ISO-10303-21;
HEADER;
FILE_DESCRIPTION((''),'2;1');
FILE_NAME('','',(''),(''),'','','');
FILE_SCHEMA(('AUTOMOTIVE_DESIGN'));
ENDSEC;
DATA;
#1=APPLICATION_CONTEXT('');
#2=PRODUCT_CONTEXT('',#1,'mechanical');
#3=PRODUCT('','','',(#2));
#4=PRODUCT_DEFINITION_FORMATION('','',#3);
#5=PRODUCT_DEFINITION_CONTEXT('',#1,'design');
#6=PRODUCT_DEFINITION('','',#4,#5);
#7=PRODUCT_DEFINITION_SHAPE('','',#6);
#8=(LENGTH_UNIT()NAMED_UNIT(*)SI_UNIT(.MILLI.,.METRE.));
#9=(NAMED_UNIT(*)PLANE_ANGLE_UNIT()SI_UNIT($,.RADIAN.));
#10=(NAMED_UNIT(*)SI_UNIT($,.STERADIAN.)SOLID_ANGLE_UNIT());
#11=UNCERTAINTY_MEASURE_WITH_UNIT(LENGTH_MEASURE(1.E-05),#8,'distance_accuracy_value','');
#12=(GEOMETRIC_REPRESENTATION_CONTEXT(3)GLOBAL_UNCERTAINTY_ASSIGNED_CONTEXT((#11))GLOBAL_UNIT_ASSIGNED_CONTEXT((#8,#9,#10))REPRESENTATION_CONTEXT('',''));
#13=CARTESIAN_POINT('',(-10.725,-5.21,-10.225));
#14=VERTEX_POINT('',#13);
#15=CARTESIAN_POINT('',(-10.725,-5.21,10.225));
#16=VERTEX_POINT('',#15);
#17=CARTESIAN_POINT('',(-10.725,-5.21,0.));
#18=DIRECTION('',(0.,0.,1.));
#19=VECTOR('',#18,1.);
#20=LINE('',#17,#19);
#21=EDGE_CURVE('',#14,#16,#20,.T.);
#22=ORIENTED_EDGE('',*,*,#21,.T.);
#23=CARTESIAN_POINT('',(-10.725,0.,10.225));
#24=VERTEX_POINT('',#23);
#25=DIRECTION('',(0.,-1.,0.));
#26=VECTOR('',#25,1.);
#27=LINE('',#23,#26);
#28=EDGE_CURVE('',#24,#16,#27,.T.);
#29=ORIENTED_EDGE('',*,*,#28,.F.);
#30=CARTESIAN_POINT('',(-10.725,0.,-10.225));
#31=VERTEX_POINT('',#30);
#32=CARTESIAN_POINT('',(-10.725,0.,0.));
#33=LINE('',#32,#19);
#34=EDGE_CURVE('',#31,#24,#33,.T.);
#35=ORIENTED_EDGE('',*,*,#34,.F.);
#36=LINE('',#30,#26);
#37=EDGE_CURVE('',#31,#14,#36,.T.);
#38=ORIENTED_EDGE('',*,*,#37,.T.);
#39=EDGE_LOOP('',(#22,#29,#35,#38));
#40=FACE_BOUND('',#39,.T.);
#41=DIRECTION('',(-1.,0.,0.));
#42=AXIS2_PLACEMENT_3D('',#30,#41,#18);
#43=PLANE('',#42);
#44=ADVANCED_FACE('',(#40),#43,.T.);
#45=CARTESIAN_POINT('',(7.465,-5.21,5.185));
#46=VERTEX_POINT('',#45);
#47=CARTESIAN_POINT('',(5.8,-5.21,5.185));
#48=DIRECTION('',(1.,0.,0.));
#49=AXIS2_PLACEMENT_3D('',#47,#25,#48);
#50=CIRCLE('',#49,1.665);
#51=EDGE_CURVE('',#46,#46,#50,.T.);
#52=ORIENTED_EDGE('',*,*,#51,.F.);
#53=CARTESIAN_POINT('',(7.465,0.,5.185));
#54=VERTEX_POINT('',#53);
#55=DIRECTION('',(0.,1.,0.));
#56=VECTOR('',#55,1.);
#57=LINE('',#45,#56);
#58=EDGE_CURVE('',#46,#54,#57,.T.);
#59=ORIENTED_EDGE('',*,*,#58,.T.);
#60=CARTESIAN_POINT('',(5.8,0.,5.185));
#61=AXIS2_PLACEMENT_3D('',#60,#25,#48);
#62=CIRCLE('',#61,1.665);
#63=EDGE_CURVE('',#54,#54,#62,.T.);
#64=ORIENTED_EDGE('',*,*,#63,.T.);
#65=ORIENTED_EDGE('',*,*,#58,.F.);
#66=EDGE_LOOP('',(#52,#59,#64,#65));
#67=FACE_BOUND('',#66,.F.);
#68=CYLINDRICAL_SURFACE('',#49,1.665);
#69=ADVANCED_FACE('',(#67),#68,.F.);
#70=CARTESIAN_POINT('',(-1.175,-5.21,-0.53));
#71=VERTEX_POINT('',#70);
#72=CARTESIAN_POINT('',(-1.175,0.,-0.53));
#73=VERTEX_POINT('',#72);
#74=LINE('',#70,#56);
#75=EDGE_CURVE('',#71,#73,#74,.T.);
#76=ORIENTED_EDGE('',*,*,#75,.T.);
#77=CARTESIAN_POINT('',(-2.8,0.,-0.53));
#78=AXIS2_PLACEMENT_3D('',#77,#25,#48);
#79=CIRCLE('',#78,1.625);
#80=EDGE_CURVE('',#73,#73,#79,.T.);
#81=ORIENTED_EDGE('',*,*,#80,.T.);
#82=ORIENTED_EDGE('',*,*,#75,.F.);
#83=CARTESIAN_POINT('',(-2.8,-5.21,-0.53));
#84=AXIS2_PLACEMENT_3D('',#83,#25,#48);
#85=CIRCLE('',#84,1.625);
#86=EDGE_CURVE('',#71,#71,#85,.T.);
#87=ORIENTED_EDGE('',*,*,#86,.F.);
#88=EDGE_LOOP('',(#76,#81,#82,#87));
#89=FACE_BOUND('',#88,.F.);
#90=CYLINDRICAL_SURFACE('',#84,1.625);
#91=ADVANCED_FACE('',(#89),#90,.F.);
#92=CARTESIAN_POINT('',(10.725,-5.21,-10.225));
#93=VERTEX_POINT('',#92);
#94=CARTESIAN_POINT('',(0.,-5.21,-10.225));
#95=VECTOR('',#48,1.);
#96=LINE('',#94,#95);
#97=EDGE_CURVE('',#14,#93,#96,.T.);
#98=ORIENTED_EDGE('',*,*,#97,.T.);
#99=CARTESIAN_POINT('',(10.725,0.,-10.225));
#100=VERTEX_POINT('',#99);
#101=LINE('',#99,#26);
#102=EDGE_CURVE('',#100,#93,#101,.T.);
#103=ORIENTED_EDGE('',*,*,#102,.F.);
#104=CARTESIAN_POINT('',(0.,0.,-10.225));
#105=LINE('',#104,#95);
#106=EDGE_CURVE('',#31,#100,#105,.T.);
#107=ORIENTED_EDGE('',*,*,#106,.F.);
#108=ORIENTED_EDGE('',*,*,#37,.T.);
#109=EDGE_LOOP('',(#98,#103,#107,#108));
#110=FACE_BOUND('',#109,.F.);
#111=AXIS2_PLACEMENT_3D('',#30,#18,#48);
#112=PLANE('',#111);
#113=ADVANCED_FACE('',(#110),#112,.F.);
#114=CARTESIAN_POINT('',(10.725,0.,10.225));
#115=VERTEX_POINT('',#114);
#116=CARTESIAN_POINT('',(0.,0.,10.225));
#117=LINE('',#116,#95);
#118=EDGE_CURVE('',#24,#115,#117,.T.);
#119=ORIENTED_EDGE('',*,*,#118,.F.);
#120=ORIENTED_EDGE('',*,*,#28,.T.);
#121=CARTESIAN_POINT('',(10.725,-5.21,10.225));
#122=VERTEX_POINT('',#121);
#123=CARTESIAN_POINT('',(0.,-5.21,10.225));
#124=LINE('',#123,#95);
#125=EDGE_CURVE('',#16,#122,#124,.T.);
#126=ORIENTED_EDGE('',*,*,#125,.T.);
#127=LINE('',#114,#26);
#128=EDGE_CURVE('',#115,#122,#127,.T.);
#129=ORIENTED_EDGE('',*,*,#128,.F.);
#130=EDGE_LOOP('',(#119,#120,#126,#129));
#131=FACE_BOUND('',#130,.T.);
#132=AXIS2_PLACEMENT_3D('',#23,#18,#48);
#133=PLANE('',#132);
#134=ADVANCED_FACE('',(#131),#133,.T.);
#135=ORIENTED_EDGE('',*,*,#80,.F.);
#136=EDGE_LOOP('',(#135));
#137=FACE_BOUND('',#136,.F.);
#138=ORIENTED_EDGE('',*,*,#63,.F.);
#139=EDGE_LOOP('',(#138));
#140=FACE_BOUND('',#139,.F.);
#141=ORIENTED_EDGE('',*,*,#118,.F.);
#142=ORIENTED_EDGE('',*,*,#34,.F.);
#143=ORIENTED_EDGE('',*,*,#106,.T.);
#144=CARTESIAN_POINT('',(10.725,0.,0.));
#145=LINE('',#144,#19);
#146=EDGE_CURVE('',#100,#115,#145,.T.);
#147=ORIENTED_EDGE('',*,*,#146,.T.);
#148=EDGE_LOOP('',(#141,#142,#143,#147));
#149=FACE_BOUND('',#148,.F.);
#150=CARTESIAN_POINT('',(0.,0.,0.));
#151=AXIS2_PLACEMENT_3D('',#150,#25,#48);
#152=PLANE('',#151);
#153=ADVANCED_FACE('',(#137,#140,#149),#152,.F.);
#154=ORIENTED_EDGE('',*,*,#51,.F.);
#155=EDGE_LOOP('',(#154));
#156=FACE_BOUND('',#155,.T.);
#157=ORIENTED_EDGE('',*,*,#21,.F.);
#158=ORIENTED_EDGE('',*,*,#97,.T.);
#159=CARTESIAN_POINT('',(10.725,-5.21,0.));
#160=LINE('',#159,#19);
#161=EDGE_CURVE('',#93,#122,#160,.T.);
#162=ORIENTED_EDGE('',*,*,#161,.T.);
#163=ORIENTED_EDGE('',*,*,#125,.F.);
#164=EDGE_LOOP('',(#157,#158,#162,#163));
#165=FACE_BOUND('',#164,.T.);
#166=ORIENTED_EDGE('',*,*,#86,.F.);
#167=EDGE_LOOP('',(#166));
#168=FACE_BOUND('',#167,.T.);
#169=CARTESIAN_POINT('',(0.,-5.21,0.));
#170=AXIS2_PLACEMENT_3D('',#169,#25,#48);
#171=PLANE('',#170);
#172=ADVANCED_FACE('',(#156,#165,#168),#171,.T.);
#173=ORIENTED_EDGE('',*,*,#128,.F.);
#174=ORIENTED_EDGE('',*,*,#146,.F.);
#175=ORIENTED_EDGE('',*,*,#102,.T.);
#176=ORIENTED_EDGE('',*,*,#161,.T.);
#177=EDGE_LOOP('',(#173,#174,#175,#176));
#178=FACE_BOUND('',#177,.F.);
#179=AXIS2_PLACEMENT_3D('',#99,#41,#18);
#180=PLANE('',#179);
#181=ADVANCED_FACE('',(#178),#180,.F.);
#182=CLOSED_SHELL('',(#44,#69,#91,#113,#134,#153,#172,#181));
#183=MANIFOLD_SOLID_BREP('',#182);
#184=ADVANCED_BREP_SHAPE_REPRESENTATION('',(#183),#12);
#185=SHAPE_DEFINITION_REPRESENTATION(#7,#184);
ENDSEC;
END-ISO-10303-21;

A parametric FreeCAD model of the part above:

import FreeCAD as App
import Part
import Sketcher
Q = App.Units.Quantity

doc = App.newDocument("Part")
body = doc.addObject("PartDesign::Body", "Body")

# Sketch on XZ plane
sketch1 = body.newObject("Sketcher::SketchObject", "Sketch")
sketch1.AttachmentSupport = (doc.getObject("XZ_Plane"), [""])
sketch1.MapMode = "FlatFace"
sketch1.addGeometry([
    Part.LineSegment(App.Vector(-11, 10, 0), App.Vector(-11, -10, 0)),
    Part.LineSegment(App.Vector(-11, -10, 0), App.Vector(11, -10, 0)),
    Part.LineSegment(App.Vector(11, -10, 0), App.Vector(11, 10, 0)),
    Part.LineSegment(App.Vector(11, 10, 0), App.Vector(-11, 10, 0)),
], False)
sketch1.addConstraint([
    Sketcher.Constraint("Coincident", 0, 2, 1, 1),
    Sketcher.Constraint("Coincident", 1, 2, 2, 1),
    Sketcher.Constraint("Coincident", 2, 2, 3, 1),
    Sketcher.Constraint("Coincident", 3, 2, 0, 1),
    Sketcher.Constraint("Vertical", 0),
    Sketcher.Constraint("Horizontal", 1),
    Sketcher.Constraint("Vertical", 2),
    Sketcher.Constraint("Horizontal", 3),
    Sketcher.Constraint("Symmetric", 0, 2, 2, 2, -1, 1),
    Sketcher.Constraint("DistanceX", 1, 1, 1, 2, Q("21.45 mm")),
    Sketcher.Constraint("DistanceY", 0, 2, 0, 1, Q("20.45 mm")),
])
pad1 = body.newObject("PartDesign::Pad", "Pad")
pad1.Profile = sketch1
pad1.Length = 5.21

# Sketch on XZ plane
sketch2 = body.newObject("Sketcher::SketchObject", "Sketch001")
sketch2.AttachmentSupport = (doc.getObject("XZ_Plane"), [""])
sketch2.MapMode = "FlatFace"
sketch2.AttachmentOffset = App.Placement(App.Vector(0, 0, 5.21), App.Rotation())
sketch2.addGeometry([
    Part.Circle(App.Vector(-2.8, -0.5, 0), App.Vector(0, 0, 1), 1.6),
    Part.Circle(App.Vector(5.8, 5.2, 0), App.Vector(0, 0, 1), 1.7),
], False)
sketch2.addConstraint([
    Sketcher.Constraint("Diameter", 0, Q("3.25 mm")),
    Sketcher.Constraint("Diameter", 1, Q("3.33 mm")),
    Sketcher.Constraint("DistanceX", 0, 3, -1, 1, Q("2.8 mm")),
    Sketcher.Constraint("DistanceX", -1, 1, 1, 3, Q("5.8 mm")),
    Sketcher.Constraint("DistanceY", 0, 3, -1, 1, Q("0.53 mm")),
    Sketcher.Constraint("DistanceY", -1, 1, 1, 3, Q("5.185 mm")),
])
pocket1 = body.newObject("PartDesign::Pocket", "Pocket")
pocket1.Profile = sketch2
pocket1.Type = "ThroughAll"

doc.recompute()
